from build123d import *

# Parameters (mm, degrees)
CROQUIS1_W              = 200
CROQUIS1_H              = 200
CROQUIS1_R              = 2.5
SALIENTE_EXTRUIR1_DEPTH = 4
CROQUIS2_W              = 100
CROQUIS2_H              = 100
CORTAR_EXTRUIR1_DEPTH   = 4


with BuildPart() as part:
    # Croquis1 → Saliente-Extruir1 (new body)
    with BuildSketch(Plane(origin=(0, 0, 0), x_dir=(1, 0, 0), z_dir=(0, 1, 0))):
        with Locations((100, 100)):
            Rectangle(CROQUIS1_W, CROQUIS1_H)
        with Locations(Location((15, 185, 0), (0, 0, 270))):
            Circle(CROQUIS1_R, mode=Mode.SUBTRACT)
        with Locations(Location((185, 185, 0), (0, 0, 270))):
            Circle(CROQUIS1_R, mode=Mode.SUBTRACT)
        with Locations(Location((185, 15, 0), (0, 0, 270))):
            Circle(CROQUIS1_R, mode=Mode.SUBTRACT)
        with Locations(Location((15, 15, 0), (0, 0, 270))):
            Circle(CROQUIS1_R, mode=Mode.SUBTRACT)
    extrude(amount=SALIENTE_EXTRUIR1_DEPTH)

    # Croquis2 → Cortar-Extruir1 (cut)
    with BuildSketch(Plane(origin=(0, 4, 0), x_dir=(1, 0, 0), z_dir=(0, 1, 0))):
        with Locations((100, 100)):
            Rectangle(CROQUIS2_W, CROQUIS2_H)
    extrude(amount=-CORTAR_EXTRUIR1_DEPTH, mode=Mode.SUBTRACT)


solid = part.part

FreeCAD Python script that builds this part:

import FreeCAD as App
import Part
import Sketcher
from FreeCAD import Vector
Q = App.Units.Quantity

doc = App.newDocument("Part")
body = doc.addObject("PartDesign::Body", "Body")

sketch1 = body.newObject("Sketcher::SketchObject", "Sketch")
sketch1.AttachmentSupport = (doc.getObject("XZ_Plane"), [""])
sketch1.MapMode = "FlatFace"
sketch1.addGeometry(Part.LineSegment(Vector(0, -200, 0), Vector(0, 0, 0)), False)
sketch1.addGeometry(Part.LineSegment(Vector(0, 0, 0), Vector(200, 0, 0)), False)
sketch1.addGeometry(Part.LineSegment(Vector(200, 0, 0), Vector(200, -200, 0)), False)
sketch1.addGeometry(Part.LineSegment(Vector(200, -200, 0), Vector(0, -200, 0)), False)
sketch1.addGeometry(Part.Circle(Vector(15, -15, 0), Vector(0, 0, 1), 2.5), False)
sketch1.addGeometry(Part.Circle(Vector(185, -15, 0), Vector(0, 0, 1), 2.5), False)
sketch1.addGeometry(Part.Circle(Vector(15, -185, 0), Vector(0, 0, 1), 2.5), False)
sketch1.addGeometry(Part.Circle(Vector(185, -185, 0), Vector(0, 0, 1), 2.5), False)
sketch1.addConstraint(Sketcher.Constraint("Coincident", 0, 2, 1, 1))
sketch1.addConstraint(Sketcher.Constraint("Coincident", 1, 2, 2, 1))
sketch1.addConstraint(Sketcher.Constraint("Coincident", 2, 2, 3, 1))
sketch1.addConstraint(Sketcher.Constraint("Coincident", 3, 2, 0, 1))
sketch1.addConstraint(Sketcher.Constraint("Vertical", 0))
sketch1.addConstraint(Sketcher.Constraint("Horizontal", 1))
sketch1.addConstraint(Sketcher.Constraint("Vertical", 2))
sketch1.addConstraint(Sketcher.Constraint("Horizontal", 3))
sketch1.addConstraint(Sketcher.Constraint("Coincident", 0, 2, -1, 1))
sketch1.addConstraint(Sketcher.Constraint("Equal", 4, 5))
sketch1.addConstraint(Sketcher.Constraint("Equal", 5, 6))
sketch1.addConstraint(Sketcher.Constraint("Equal", 6, 7))
sketch1.addConstraint(Sketcher.Constraint("Horizontal", 4, 3, 5, 3))
sketch1.addConstraint(Sketcher.Constraint("Horizontal", 6, 3, 7, 3))
sketch1.addConstraint(Sketcher.Constraint("Vertical", 4, 3, 6, 3))
sketch1.addConstraint(Sketcher.Constraint("Vertical", 5, 3, 7, 3))
sketch1.addConstraint(Sketcher.Constraint("Equal", 3, 0))
sketch1.addConstraint(Sketcher.Constraint("Diameter", 4, Q("5 mm")))
sketch1.addConstraint(Sketcher.Constraint("DistanceX", 1, 1, 1, 2, Q("200 mm")))
sketch1.addConstraint(Sketcher.Constraint("DistanceX", -1, 1, 4, 3, Q("15 mm")))
sketch1.addConstraint(Sketcher.Constraint("DistanceY", 4, 3, -1, 1, Q("15 mm")))
sketch1.addConstraint(Sketcher.Constraint("DistanceX", -1, 1, 5, 3, Q("185 mm")))
sketch1.addConstraint(Sketcher.Constraint("DistanceY", 6, 3, -1, 1, Q("185 mm")))
pad1 = body.newObject("PartDesign::Pad", "Pad")
pad1.Profile = sketch1
pad1.Length = 4
pad1.Reversed = True

sketch2 = body.newObject("Sketcher::SketchObject", "Sketch001")
sketch2.AttachmentSupport = (doc.getObject("XZ_Plane"), [""])
sketch2.MapMode = "FlatFace"
sketch2.AttachmentOffset = App.Placement(Vector(0, 0, -4), App.Rotation())
sketch2.addGeometry(Part.LineSegment(Vector(50, -150, 0), Vector(50, -50, 0)), False)
sketch2.addGeometry(Part.LineSegment(Vector(50, -50, 0), Vector(150, -50, 0)), False)
sketch2.addGeometry(Part.LineSegment(Vector(150, -50, 0), Vector(150, -150, 0)), False)
sketch2.addGeometry(Part.LineSegment(Vector(150, -150, 0), Vector(50, -150, 0)), False)
sketch2.addConstraint(Sketcher.Constraint("Coincident", 0, 2, 1, 1))
sketch2.addConstraint(Sketcher.Constraint("Coincident", 1, 2, 2, 1))
sketch2.addConstraint(Sketcher.Constraint("Coincident", 2, 2, 3, 1))
sketch2.addConstraint(Sketcher.Constraint("Coincident", 3, 2, 0, 1))
sketch2.addConstraint(Sketcher.Constraint("Vertical", 0))
sketch2.addConstraint(Sketcher.Constraint("Horizontal", 1))
sketch2.addConstraint(Sketcher.Constraint("Vertical", 2))
sketch2.addConstraint(Sketcher.Constraint("Horizontal", 3))
sketch2.addConstraint(Sketcher.Constraint("Equal", 3, 0))
sketch2.addConstraint(Sketcher.Constraint("DistanceX", 1, 1, 1, 2, Q("100 mm")))
sketch2.addConstraint(Sketcher.Constraint("DistanceX", -1, 1, 0, 2, Q("50 mm")))
sketch2.addConstraint(Sketcher.Constraint("DistanceY", 0, 2, -1, 1, Q("50 mm")))
pocket1 = body.newObject("PartDesign::Pocket", "Pocket")
pocket1.Profile = sketch2
pocket1.Length = 4
pocket1.Reversed = True

doc.recompute()
